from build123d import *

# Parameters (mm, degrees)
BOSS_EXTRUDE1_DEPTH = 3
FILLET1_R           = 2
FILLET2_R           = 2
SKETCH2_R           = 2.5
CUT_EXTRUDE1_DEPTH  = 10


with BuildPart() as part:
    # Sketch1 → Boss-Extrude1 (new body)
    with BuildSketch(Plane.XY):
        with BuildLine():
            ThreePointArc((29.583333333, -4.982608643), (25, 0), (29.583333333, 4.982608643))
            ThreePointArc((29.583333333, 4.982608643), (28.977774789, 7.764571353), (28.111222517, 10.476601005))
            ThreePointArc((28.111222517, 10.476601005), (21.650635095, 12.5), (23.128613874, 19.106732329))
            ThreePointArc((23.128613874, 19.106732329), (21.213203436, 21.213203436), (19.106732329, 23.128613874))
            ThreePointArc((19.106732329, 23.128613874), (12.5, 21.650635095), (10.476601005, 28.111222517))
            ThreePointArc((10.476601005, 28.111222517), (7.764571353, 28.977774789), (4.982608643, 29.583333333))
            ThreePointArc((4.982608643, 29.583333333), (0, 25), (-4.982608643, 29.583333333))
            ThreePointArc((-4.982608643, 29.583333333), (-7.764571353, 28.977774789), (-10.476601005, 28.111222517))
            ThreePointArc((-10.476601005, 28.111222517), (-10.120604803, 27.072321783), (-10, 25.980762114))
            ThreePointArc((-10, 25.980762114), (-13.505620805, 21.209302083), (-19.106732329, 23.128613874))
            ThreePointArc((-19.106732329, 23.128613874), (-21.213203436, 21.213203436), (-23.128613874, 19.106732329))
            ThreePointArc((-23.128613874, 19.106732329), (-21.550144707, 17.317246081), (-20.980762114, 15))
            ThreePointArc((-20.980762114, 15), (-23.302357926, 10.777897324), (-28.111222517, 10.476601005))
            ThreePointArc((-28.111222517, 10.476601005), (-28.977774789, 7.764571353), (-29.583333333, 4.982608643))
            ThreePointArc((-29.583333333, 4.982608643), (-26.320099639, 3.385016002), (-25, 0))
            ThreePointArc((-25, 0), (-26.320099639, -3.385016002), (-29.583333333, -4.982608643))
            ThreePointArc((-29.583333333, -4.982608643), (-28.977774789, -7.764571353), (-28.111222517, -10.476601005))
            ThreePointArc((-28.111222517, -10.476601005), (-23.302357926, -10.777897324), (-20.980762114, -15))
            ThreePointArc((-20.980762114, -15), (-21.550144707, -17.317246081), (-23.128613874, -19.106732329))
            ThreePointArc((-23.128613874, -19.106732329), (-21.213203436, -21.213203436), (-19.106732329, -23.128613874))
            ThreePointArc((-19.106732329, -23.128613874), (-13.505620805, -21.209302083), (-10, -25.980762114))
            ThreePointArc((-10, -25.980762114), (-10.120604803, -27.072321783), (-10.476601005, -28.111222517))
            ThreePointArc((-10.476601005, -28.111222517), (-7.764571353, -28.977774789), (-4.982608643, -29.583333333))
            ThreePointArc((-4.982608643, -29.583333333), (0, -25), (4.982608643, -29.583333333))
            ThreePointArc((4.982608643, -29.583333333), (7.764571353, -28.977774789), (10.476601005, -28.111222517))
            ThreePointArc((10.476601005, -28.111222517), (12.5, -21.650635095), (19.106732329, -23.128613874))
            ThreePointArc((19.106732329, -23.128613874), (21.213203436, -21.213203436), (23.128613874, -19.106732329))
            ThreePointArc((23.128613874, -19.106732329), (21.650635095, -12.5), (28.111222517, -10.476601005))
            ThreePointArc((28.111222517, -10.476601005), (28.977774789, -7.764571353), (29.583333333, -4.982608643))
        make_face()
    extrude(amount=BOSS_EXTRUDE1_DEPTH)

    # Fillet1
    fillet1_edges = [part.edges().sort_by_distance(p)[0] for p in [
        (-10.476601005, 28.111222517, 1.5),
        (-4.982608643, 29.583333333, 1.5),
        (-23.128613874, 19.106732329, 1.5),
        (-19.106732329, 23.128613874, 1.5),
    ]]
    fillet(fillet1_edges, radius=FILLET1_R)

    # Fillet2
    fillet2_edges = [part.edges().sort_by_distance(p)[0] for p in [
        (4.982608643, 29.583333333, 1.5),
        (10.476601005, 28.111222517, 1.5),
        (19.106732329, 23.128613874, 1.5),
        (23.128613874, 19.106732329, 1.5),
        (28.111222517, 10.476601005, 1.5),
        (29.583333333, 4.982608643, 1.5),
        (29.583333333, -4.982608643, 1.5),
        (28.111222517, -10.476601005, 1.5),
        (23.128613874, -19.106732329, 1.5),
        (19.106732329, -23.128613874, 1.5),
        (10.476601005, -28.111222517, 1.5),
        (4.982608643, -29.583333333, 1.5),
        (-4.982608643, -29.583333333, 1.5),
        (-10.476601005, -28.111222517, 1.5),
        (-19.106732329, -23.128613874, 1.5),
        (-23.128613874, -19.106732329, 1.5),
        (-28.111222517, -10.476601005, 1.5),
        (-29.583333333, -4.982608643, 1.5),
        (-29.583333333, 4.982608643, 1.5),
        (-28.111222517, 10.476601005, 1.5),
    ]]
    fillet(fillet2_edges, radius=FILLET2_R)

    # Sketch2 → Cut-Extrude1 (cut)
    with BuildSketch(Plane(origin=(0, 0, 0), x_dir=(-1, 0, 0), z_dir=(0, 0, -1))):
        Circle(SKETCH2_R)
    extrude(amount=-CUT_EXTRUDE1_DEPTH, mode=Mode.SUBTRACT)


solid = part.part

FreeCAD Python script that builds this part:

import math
import FreeCAD as App
import Part
import Sketcher


def edges_at(feature, points):
    """Names of the edges that pass closest to the given points."""
    edges = feature.Shape.Edges
    near = lambda p: min(range(len(edges)), key=lambda i: edges[i].distToShape(Part.Vertex(*p))[0])
    return sorted({f"Edge{near(p) + 1}" for p in points})

doc = App.newDocument("Part")
body = doc.addObject("PartDesign::Body", "Body")

sketch1 = body.newObject("Sketcher::SketchObject", "Sketch")
sketch1.AttachmentSupport = (doc.getObject("XY_Plane"), [""])
sketch1.MapMode = "FlatFace"
sketch1.addGeometry(Part.ArcOfCircle(Part.Circle(App.Vector(30, 0, 0), App.Vector(0, 0, 1), 5), math.radians(95), math.radians(265)), False)
sketch1.addGeometry(Part.ArcOfCircle(Part.Circle(App.Vector(0, 0, 0), App.Vector(0, 0, 1), 30), math.radians(9.56), math.radians(20.44)), False)
sketch1.addGeometry(Part.ArcOfCircle(Part.Circle(App.Vector(26, 15, 0), App.Vector(0, 0, 1), 5), math.radians(125), math.radians(295)), False)
sketch1.addGeometry(Part.ArcOfCircle(Part.Circle(App.Vector(0, 0, 0), App.Vector(0, 0, 1), 30), math.radians(39.56), math.radians(50.44)), False)
sketch1.addGeometry(Part.ArcOfCircle(Part.Circle(App.Vector(15, 26, 0), App.Vector(0, 0, 1), 5), math.radians(155), math.radians(325)), False)
sketch1.addGeometry(Part.ArcOfCircle(Part.Circle(App.Vector(0, 0, 0), App.Vector(0, 0, 1), 30), math.radians(69.56), math.radians(80.44)), False)
sketch1.addGeometry(Part.ArcOfCircle(Part.Circle(App.Vector(0, 30, 0), App.Vector(0, 0, 1), 5), math.radians(-175), math.radians(-5)), False)
sketch1.addGeometry(Part.ArcOfCircle(Part.Circle(App.Vector(0, 0, 0), App.Vector(0, 0, 1), 30), math.radians(99.56), math.radians(110.44)), False)
sketch1.addGeometry(Part.ArcOfCircle(Part.Circle(App.Vector(-15, 26, 0), App.Vector(0, 0, 1), 5), math.radians(0), math.radians(25)), False)
sketch1.addGeometry(Part.ArcOfCircle(Part.Circle(App.Vector(-15, 26, 0), App.Vector(0, 0, 1), 5), math.radians(-145), math.radians(0)), False)
sketch1.addGeometry(Part.ArcOfCircle(Part.Circle(App.Vector(0, 0, 0), App.Vector(0, 0, 1), 30), math.radians(129.56), math.radians(140.44)), False)
sketch1.addGeometry(Part.ArcOfCircle(Part.Circle(App.Vector(-26, 15, 0), App.Vector(0, 0, 1), 5), math.radians(0), math.radians(55)), False)
sketch1.addGeometry(Part.ArcOfCircle(Part.Circle(App.Vector(-26, 15, 0), App.Vector(0, 0, 1), 5), math.radians(-115), math.radians(0)), False)
sketch1.addGeometry(Part.ArcOfCircle(Part.Circle(App.Vector(0, 0, 0), App.Vector(0, 0, 1), 30), math.radians(159.56), math.radians(170.44)), False)
sketch1.addGeometry(Part.ArcOfCircle(Part.Circle(App.Vector(-30, 0, 0), App.Vector(0, 0, 1), 5), math.radians(0), math.radians(85)), False)
sketch1.addGeometry(Part.ArcOfCircle(Part.Circle(App.Vector(-30, 0, 0), App.Vector(0, 0, 1), 5), math.radians(-85), math.radians(0)), False)
sketch1.addGeometry(Part.ArcOfCircle(Part.Circle(App.Vector(0, 0, 0), App.Vector(0, 0, 1), 30), math.radians(-170.44), math.radians(-159.56)), False)
sketch1.addGeometry(Part.ArcOfCircle(Part.Circle(App.Vector(-26, -15, 0), App.Vector(0, 0, 1), 5), math.radians(0), math.radians(115)), False)
sketch1.addGeometry(Part.ArcOfCircle(Part.Circle(App.Vector(-26, -15, 0), App.Vector(0, 0, 1), 5), math.radians(-55), math.radians(0)), False)
sketch1.addGeometry(Part.ArcOfCircle(Part.Circle(App.Vector(0, 0, 0), App.Vector(0, 0, 1), 30), math.radians(-140.44), math.radians(-129.56)), False)
sketch1.addGeometry(Part.ArcOfCircle(Part.Circle(App.Vector(-15, -26, 0), App.Vector(0, 0, 1), 5), math.radians(0), math.radians(145)), False)
sketch1.addGeometry(Part.ArcOfCircle(Part.Circle(App.Vector(-15, -26, 0), App.Vector(0, 0, 1), 5), math.radians(-25), math.radians(0)), False)
sketch1.addGeometry(Part.ArcOfCircle(Part.Circle(App.Vector(0, 0, 0), App.Vector(0, 0, 1), 30), math.radians(-110.44), math.radians(-99.56)), False)
sketch1.addGeometry(Part.ArcOfCircle(Part.Circle(App.Vector(0, -30, 0), App.Vector(0, 0, 1), 5), math.radians(5), math.radians(175)), False)
sketch1.addGeometry(Part.ArcOfCircle(Part.Circle(App.Vector(0, 0, 0), App.Vector(0, 0, 1), 30), math.radians(-80.44), math.radians(-69.56)), False)
sketch1.addGeometry(Part.ArcOfCircle(Part.Circle(App.Vector(15, -26, 0), App.Vector(0, 0, 1), 5), math.radians(35), math.radians(205)), False)
sketch1.addGeometry(Part.ArcOfCircle(Part.Circle(App.Vector(0, 0, 0), App.Vector(0, 0, 1), 30), math.radians(-50.44), math.radians(-39.56)), False)
sketch1.addGeometry(Part.ArcOfCircle(Part.Circle(App.Vector(26, -15, 0), App.Vector(0, 0, 1), 5), math.radians(65), math.radians(235)), False)
sketch1.addGeometry(Part.ArcOfCircle(Part.Circle(App.Vector(0, 0, 0), App.Vector(0, 0, 1), 30), math.radians(-20.44), math.radians(-9.56)), False)
sketch1.addConstraint(Sketcher.Constraint("Coincident", 0, 1, 1, 1))
sketch1.addConstraint(Sketcher.Constraint("Coincident", 1, 2, 2, 2))
sketch1.addConstraint(Sketcher.Constraint("Coincident", 2, 1, 3, 1))
sketch1.addConstraint(Sketcher.Constraint("Coincident", 3, 2, 4, 2))
sketch1.addConstraint(Sketcher.Constraint("Coincident", 4, 1, 5, 1))
sketch1.addConstraint(Sketcher.Constraint("Coincident", 5, 2, 6, 2))
sketch1.addConstraint(Sketcher.Constraint("Coincident", 6, 1, 7, 1))
sketch1.addConstraint(Sketcher.Constraint("Coincident", 7, 2, 8, 2))
sketch1.addConstraint(Sketcher.Constraint("Tangent", 8, 1, 9, 2))
sketch1.addConstraint(Sketcher.Constraint("Coincident", 9, 1, 10, 1))
sketch1.addConstraint(Sketcher.Constraint("Coincident", 10, 2, 11, 2))
sketch1.addConstraint(Sketcher.Constraint("Tangent", 11, 1, 12, 2))
sketch1.addConstraint(Sketcher.Constraint("Coincident", 12, 1, 13, 1))
sketch1.addConstraint(Sketcher.Constraint("Coincident", 13, 2, 14, 2))
sketch1.addConstraint(Sketcher.Constraint("Tangent", 14, 1, 15, 2))
sketch1.addConstraint(Sketcher.Constraint("Coincident", 15, 1, 16, 1))
sketch1.addConstraint(Sketcher.Constraint("Coincident", 16, 2, 17, 2))
sketch1.addConstraint(Sketcher.Constraint("Tangent", 17, 1, 18, 2))
sketch1.addConstraint(Sketcher.Constraint("Coincident", 18, 1, 19, 1))
sketch1.addConstraint(Sketcher.Constraint("Coincident", 19, 2, 20, 2))
sketch1.addConstraint(Sketcher.Constraint("Tangent", 20, 1, 21, 2))
sketch1.addConstraint(Sketcher.Constraint("Coincident", 21, 1, 22, 1))
sketch1.addConstraint(Sketcher.Constraint("Coincident", 22, 2, 23, 2))
sketch1.addConstraint(Sketcher.Constraint("Coincident", 23, 1, 24, 1))
sketch1.addConstraint(Sketcher.Constraint("Coincident", 24, 2, 25, 2))
sketch1.addConstraint(Sketcher.Constraint("Coincident", 25, 1, 26, 1))
sketch1.addConstraint(Sketcher.Constraint("Coincident", 26, 2, 27, 2))
sketch1.addConstraint(Sketcher.Constraint("Coincident", 27, 1, 28, 1))
sketch1.addConstraint(Sketcher.Constraint("Coincident", 28, 2, 0, 2))
sketch1.addConstraint(Sketcher.Constraint("Coincident", 1, 3, -1, 1))
sketch1.addConstraint(Sketcher.Constraint("Coincident", 3, 3, -1, 1))
sketch1.addConstraint(Sketcher.Constraint("Coincident", 5, 3, -1, 1))
sketch1.addConstraint(Sketcher.Constraint("Coincident", 7, 3, -1, 1))
sketch1.addConstraint(Sketcher.Constraint("Coincident", 10, 3, -1, 1))
sketch1.addConstraint(Sketcher.Constraint("Coincident", 13, 3, -1, 1))
sketch1.addConstraint(Sketcher.Constraint("Coincident", 16, 3, -1, 1))
sketch1.addConstraint(Sketcher.Constraint("Coincident", 19, 3, -1, 1))
sketch1.addConstraint(Sketcher.Constraint("Coincident", 22, 3, -1, 1))
sketch1.addConstraint(Sketcher.Constraint("Coincident", 24, 3, -1, 1))
sketch1.addConstraint(Sketcher.Constraint("Coincident", 26, 3, -1, 1))
sketch1.addConstraint(Sketcher.Constraint("Coincident", 28, 3, -1, 1))
sketch1.addConstraint(Sketcher.Constraint("Equal", 0, 2))
sketch1.addConstraint(Sketcher.Constraint("Equal", 1, 3))
sketch1.addConstraint(Sketcher.Constraint("Equal", 2, 4))
sketch1.addConstraint(Sketcher.Constraint("Equal", 3, 5))
sketch1.addConstraint(Sketcher.Constraint("Equal", 4, 6))
sketch1.addConstraint(Sketcher.Constraint("Equal", 5, 7))
sketch1.addConstraint(Sketcher.Constraint("Equal", 6, 8))
sketch1.addConstraint(Sketcher.Constraint("Equal", 8, 9))
sketch1.addConstraint(Sketcher.Constraint("Equal", 7, 10))
sketch1.addConstraint(Sketcher.Constraint("Equal", 9, 11))
sketch1.addConstraint(Sketcher.Constraint("Equal", 11, 12))
sketch1.addConstraint(Sketcher.Constraint("Equal", 10, 13))
sketch1.addConstraint(Sketcher.Constraint("Equal", 12, 14))
sketch1.addConstraint(Sketcher.Constraint("Equal", 14, 15))
sketch1.addConstraint(Sketcher.Constraint("Equal", 13, 16))
sketch1.addConstraint(Sketcher.Constraint("Equal", 15, 17))
sketch1.addConstraint(Sketcher.Constraint("Equal", 17, 18))
sketch1.addConstraint(Sketcher.Constraint("Equal", 16, 19))
sketch1.addConstraint(Sketcher.Constraint("Equal", 18, 20))
sketch1.addConstraint(Sketcher.Constraint("Equal", 20, 21))
sketch1.addConstraint(Sketcher.Constraint("Equal", 19, 22))
sketch1.addConstraint(Sketcher.Constraint("Equal", 21, 23))
sketch1.addConstraint(Sketcher.Constraint("Equal", 22, 24))
sketch1.addConstraint(Sketcher.Constraint("Equal", 23, 25))
sketch1.addConstraint(Sketcher.Constraint("Equal", 24, 26))
sketch1.addConstraint(Sketcher.Constraint("Equal", 25, 27))
sketch1.addConstraint(Sketcher.Constraint("Equal", 26, 28))
sketch1.addConstraint(Sketcher.Constraint("Symmetric", 0, 3, 14, 3, -1, 1))
sketch1.addConstraint(Sketcher.Constraint("Symmetric", 2, 3, 17, 3, -1, 1))
sketch1.addConstraint(Sketcher.Constraint("Symmetric", 4, 3, 20, 3, -1, 1))
sketch1.addConstraint(Sketcher.Constraint("Symmetric", 6, 3, 23, 3, -1, 1))
sketch1.addConstraint(Sketcher.Constraint("Symmetric", 8, 3, 25, 3, -1, 1))
sketch1.addConstraint(Sketcher.Constraint("Symmetric", 11, 3, 27, 3, -1, 1))
sketch1.addConstraint(Sketcher.Constraint("Symmetric", 4, 3, 8, 3, -2))
sketch1.addConstraint(Sketcher.Constraint("Symmetric", 2, 3, 11, 3, -2))
sketch1.addConstraint(Sketcher.Constraint("PointOnObject", 0, 3, -1))
sketch1.addConstraint(Sketcher.Constraint("PointOnObject", 6, 3, -2))
sketch1.addConstraint(Sketcher.Constraint("PointOnObject", 14, 1, -1))
sketch1.addConstraint(Sketcher.Constraint("Horizontal", 9, 3, 8, 1))
sketch1.addConstraint(Sketcher.Constraint("Horizontal", 12, 3, 11, 1))
sketch1.addConstraint(Sketcher.Constraint("Horizontal", 27, 3, 17, 1))
sketch1.addConstraint(Sketcher.Constraint("Horizontal", 25, 3, 20, 1))
sketch1.addConstraint(Sketcher.Constraint("Radius", 0, 5.0))
sketch1.addConstraint(Sketcher.Constraint("Radius", 1, 30.0))
sketch1.addConstraint(Sketcher.Constraint("DistanceX", -1, 1, 0, 3, 30.0))
sketch1.addConstraint(Sketcher.Constraint("DistanceY", -1, 1, 2, 3, 15.0))
sketch1.addConstraint(Sketcher.Constraint("DistanceX", -1, 1, 4, 3, 15.0))
sketch1.addConstraint(Sketcher.Constraint("DistanceY", -1, 1, 6, 3, 30.0))
sketch1.addConstraint(Sketcher.Constraint("DistanceY", -1, 1, 1, 2, 10.476601))
sketch1.addConstraint(Sketcher.Constraint("DistanceX", -1, 1, 4, 1, 10.476601))
pad1 = body.newObject("PartDesign::Pad", "Pad")
pad1.Profile = sketch1
pad1.Length = 3
doc.recompute()

fillet = body.newObject("PartDesign::Fillet", "Fillet")
fillet.Base = (pad1, edges_at(pad1, [
    (-10.477, 28.111, 1.5),
    (-4.983, 29.583, 1.5),
    (-23.129, 19.107, 1.5),
    (-19.107, 23.129, 1.5),
]))
fillet.Radius = 2
doc.recompute()

fillet2 = body.newObject("PartDesign::Fillet", "Fillet001")
fillet2.Base = (fillet, edges_at(fillet, [
    (4.983, 29.583, 1.5),
    (10.477, 28.111, 1.5),
    (19.107, 23.129, 1.5),
    (23.129, 19.107, 1.5),
    (28.111, 10.477, 1.5),
    (29.583, 4.983, 1.5),
    (29.583, -4.983, 1.5),
    (28.111, -10.477, 1.5),
    (23.129, -19.107, 1.5),
    (19.107, -23.129, 1.5),
    (10.477, -28.111, 1.5),
    (4.983, -29.583, 1.5),
    (-4.983, -29.583, 1.5),
    (-10.477, -28.111, 1.5),
    (-19.107, -23.129, 1.5),
    (-23.129, -19.107, 1.5),
    (-28.111, -10.477, 1.5),
    (-29.583, -4.983, 1.5),
    (-29.583, 4.983, 1.5),
    (-28.111, 10.477, 1.5),
]))
fillet2.Radius = 2

sketch2 = body.newObject("Sketcher::SketchObject", "Sketch001")
sketch2.AttachmentSupport = (doc.getObject("XY_Plane"), [""])
sketch2.MapMode = "FlatFace"
sketch2.addGeometry(Part.Circle(App.Vector(0, 0, 0), App.Vector(0, 0, 1), 2.5), False)
sketch2.addConstraint(Sketcher.Constraint("Coincident", 0, 3, -1, 1))
sketch2.addConstraint(Sketcher.Constraint("Diameter", 0, 5.0))
pocket1 = body.newObject("PartDesign::Pocket", "Pocket")
pocket1.Profile = sketch2
pocket1.Length = 10
pocket1.Reversed = True

doc.recompute()
